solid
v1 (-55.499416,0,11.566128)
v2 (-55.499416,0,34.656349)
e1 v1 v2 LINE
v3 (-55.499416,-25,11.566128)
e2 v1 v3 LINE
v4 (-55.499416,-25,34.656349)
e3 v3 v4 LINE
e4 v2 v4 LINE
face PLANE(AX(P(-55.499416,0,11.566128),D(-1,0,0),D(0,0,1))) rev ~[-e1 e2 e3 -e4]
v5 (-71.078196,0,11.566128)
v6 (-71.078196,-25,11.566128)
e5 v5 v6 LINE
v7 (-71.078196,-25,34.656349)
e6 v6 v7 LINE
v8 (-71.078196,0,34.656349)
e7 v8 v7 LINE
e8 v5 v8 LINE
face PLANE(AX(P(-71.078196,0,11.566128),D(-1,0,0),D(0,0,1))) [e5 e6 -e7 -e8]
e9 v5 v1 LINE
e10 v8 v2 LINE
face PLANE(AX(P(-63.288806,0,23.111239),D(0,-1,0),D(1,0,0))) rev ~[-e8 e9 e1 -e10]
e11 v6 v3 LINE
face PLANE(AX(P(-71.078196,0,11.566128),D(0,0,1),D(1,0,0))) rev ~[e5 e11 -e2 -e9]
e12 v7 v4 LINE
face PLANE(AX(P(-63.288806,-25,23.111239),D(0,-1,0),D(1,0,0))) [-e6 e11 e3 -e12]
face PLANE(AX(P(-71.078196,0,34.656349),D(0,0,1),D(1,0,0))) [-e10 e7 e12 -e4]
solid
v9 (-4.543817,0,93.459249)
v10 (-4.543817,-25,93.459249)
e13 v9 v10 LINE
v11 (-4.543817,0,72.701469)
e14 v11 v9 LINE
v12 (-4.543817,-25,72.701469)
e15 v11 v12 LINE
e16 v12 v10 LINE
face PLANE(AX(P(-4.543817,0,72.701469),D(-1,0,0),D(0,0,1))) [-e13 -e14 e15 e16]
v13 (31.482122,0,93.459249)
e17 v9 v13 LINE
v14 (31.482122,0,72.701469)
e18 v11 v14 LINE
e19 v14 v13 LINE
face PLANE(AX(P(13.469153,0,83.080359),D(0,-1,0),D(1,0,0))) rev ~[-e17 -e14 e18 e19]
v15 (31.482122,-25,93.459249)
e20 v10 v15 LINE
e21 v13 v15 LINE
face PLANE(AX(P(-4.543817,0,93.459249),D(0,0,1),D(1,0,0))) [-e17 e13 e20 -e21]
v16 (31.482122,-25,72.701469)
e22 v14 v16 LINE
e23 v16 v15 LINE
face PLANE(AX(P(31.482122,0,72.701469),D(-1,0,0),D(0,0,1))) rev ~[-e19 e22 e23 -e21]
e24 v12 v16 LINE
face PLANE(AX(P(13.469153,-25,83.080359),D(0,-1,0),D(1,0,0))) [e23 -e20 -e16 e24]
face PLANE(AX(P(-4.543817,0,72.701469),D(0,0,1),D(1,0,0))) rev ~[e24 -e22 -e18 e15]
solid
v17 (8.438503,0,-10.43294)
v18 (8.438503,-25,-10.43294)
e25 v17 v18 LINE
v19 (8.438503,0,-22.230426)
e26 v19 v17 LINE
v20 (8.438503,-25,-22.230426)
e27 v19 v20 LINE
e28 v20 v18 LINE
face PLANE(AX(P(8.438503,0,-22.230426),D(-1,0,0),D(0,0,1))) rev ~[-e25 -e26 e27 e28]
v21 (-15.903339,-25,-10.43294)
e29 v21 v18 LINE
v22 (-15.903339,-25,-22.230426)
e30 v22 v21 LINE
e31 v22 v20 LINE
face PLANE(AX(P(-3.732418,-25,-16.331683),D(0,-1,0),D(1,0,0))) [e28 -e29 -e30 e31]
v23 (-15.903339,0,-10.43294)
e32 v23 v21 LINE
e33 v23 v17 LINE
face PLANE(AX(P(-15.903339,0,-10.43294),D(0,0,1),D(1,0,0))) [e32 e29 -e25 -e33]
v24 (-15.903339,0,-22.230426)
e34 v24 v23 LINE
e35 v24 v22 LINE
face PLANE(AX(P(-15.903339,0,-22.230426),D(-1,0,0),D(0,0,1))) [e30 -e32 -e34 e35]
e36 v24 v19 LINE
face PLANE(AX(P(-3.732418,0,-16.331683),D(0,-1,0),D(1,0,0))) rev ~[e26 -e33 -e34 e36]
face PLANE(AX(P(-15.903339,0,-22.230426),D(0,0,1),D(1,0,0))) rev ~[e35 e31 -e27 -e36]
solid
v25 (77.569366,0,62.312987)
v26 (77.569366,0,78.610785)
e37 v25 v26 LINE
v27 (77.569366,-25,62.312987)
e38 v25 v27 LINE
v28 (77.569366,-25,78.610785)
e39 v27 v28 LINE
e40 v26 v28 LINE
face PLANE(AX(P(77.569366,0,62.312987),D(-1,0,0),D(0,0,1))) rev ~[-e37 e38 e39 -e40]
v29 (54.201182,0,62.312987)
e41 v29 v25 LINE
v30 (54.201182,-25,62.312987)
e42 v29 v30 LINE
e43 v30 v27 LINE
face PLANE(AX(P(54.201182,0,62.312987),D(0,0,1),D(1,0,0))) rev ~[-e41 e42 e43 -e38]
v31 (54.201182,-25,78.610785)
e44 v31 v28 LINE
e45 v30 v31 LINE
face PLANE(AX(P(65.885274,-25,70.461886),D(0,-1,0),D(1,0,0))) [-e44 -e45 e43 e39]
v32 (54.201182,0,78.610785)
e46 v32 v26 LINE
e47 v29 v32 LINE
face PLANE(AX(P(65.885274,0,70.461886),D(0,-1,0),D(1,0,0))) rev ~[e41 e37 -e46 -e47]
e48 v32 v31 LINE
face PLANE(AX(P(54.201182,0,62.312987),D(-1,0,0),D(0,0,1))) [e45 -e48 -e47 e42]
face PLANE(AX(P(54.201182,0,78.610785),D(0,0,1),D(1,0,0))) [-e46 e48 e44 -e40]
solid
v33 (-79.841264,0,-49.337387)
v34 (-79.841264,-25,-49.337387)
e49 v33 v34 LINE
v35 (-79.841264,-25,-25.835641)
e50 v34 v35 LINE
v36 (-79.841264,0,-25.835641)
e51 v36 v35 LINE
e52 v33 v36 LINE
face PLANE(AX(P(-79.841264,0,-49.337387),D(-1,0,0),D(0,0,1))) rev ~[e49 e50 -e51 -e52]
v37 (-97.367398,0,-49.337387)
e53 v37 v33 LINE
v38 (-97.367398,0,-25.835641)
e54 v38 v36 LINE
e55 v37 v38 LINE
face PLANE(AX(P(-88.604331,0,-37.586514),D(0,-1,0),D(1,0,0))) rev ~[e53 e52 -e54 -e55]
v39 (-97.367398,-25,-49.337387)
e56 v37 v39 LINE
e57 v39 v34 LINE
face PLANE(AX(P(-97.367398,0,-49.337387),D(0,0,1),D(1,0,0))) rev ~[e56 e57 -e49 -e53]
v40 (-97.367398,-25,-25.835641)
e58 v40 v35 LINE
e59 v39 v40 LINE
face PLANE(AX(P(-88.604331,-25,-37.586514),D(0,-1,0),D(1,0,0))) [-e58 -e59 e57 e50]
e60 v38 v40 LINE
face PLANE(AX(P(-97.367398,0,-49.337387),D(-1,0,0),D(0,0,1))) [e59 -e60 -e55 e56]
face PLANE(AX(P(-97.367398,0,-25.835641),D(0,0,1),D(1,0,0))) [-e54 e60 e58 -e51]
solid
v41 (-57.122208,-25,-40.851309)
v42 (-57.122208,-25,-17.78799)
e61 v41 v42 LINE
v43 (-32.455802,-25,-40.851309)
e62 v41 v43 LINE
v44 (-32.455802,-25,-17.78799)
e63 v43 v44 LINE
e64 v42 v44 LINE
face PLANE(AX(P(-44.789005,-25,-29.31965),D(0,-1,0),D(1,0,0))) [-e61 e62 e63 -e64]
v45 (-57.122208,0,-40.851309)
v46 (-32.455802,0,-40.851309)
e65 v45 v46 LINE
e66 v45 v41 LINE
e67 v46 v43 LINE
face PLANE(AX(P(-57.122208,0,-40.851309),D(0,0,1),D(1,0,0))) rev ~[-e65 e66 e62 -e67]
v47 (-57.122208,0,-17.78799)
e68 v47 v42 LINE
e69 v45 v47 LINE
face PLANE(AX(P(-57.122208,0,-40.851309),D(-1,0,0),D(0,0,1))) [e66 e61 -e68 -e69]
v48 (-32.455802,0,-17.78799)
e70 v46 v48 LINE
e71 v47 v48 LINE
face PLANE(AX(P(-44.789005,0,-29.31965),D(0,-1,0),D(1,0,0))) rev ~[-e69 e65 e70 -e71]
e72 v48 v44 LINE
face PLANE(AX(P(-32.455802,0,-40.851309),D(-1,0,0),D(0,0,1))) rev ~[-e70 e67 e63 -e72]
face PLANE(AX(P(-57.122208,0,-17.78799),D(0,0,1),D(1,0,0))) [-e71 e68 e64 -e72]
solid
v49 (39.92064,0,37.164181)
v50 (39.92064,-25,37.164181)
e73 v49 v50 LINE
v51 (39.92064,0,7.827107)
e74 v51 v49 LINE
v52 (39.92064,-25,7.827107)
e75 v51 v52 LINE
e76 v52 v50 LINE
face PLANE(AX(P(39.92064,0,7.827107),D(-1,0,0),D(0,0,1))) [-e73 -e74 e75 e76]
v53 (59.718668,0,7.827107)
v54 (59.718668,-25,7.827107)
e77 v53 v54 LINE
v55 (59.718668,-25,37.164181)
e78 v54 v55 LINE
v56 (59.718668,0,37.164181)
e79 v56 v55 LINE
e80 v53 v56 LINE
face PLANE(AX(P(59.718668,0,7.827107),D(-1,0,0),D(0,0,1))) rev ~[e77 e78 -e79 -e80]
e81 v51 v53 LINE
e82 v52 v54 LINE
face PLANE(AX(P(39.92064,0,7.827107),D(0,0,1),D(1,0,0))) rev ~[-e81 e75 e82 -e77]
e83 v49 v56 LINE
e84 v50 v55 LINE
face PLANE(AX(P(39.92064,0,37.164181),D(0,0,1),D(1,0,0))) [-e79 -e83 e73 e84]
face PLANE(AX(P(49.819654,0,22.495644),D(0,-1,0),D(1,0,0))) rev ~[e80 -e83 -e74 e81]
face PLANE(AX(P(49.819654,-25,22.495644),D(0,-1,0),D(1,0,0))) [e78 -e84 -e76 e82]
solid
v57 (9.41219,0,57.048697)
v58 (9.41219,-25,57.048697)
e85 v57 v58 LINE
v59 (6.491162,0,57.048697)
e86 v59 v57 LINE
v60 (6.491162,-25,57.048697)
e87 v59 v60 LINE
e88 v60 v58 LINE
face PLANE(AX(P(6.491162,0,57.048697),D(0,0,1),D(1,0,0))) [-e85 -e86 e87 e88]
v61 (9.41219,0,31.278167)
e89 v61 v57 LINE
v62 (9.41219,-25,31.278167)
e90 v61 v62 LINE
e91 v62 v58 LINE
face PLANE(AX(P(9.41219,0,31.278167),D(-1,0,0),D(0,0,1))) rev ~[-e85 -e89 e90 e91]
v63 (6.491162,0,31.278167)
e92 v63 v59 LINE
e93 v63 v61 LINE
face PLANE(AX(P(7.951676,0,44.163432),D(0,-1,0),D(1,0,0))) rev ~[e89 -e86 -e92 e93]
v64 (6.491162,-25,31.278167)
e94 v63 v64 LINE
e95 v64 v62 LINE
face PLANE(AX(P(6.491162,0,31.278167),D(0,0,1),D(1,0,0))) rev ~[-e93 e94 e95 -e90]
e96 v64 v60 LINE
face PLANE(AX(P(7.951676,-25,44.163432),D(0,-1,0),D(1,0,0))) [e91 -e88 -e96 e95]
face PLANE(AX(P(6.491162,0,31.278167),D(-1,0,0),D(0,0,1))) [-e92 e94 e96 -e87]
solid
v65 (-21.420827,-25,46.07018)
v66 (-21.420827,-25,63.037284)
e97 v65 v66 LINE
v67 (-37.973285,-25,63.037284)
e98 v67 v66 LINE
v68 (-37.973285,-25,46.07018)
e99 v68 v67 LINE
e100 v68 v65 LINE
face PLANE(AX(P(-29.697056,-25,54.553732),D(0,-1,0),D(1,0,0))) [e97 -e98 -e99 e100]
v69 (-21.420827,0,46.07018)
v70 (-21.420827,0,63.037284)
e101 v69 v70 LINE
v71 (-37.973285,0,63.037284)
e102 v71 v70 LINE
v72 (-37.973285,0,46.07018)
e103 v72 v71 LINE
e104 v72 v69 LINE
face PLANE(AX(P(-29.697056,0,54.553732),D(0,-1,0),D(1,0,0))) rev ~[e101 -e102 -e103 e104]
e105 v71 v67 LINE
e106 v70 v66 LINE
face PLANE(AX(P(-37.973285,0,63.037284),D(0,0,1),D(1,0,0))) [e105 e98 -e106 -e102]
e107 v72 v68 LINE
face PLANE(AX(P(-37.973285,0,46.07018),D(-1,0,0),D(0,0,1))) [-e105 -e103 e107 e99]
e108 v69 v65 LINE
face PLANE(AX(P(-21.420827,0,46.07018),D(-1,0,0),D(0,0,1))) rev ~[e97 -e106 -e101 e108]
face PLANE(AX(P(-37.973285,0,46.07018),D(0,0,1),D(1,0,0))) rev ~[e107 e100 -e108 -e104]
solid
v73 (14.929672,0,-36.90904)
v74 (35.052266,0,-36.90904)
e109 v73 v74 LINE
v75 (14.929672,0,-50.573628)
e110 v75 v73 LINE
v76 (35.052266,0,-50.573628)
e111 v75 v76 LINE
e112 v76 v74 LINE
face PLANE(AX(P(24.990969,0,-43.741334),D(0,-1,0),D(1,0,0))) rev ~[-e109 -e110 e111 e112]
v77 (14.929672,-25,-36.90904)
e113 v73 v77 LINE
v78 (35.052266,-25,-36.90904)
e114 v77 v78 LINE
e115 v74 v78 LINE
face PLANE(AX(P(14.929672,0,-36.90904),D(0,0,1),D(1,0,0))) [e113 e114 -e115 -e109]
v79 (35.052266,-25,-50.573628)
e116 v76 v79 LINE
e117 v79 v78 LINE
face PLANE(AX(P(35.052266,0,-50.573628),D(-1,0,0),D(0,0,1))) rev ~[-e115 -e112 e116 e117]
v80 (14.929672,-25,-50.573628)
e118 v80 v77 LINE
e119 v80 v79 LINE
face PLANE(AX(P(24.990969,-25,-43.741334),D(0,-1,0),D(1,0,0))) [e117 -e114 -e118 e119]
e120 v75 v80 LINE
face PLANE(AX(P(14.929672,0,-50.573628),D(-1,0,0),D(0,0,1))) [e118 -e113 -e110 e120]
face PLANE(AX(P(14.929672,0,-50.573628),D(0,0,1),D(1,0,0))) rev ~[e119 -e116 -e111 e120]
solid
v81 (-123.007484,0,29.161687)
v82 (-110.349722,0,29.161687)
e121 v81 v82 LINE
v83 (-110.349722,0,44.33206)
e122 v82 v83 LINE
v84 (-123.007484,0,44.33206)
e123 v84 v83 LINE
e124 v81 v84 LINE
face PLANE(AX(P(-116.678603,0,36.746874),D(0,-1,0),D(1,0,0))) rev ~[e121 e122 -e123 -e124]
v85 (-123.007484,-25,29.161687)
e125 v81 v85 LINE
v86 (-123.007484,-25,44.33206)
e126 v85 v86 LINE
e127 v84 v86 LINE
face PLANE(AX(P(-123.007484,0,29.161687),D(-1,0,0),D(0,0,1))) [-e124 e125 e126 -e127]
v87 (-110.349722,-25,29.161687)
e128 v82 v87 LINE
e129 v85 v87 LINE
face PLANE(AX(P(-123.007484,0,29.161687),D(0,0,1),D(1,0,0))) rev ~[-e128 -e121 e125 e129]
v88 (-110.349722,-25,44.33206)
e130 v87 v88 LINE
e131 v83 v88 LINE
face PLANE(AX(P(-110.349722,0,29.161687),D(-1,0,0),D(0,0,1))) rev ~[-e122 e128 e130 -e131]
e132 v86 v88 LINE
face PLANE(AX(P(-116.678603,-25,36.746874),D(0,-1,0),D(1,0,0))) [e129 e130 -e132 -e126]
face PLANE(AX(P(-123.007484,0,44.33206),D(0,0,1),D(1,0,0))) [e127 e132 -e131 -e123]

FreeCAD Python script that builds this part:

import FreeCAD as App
import Part
import Sketcher


def add_polygon(sketch, points):
    """Adds a closed chain of lines whose ends are joined by coincident constraints."""
    first, n = sketch.GeometryCount, len(points)
    for a, b in zip(points, points[1:] + points[:1]):
        sketch.addGeometry(Part.LineSegment(App.Vector(*a, 0), App.Vector(*b, 0)), False)
    for i in range(n):
        sketch.addConstraint(Sketcher.Constraint("Coincident", first + i, 2, first + (i + 1) % n, 1))

doc = App.newDocument("Part")
params = doc.addObject("Spreadsheet::Sheet", "Params")
for row, (alias, value) in enumerate([
    ("pad1_length", "25 mm"),
], start=1):
    params.set(f"A{row}", alias)
    params.set(f"B{row}", "=" + value)
    params.setAlias(f"B{row}", alias)

body = doc.addObject("PartDesign::Body", "Body")
body.AllowCompound = True

# Sketch on XZ plane
sketch1 = doc.addObject("Sketcher::SketchObject", "Sketch")
body.addObject(sketch1)
sketch1.AttachmentSupport = (doc.XZ_Plane, [""])
sketch1.MapMode = "FlatFace"
add_polygon(sketch1, [(-123, 44.3), (-123, 29.2), (-110.3, 29.2), (-110.3, 44.3)])  # lines 0-3
add_polygon(sketch1, [(-97.4, -25.8), (-97.4, -49.3), (-79.8, -49.3), (-79.8, -25.8)])  # lines 4-7
add_polygon(sketch1, [(-71.1, 34.7), (-71.1, 11.6), (-55.5, 11.6), (-55.5, 34.7)])  # lines 8-11
add_polygon(sketch1, [(-38, 63), (-38, 46.1), (-21.4, 46.1), (-21.4, 63)])  # lines 12-15
add_polygon(sketch1, [(6.5, 57), (6.5, 31.3), (9.4, 31.3), (9.4, 57)])  # lines 16-19
add_polygon(sketch1, [(39.9, 37.2), (39.9, 7.8), (59.7, 7.8), (59.7, 37.2)])  # lines 20-23
add_polygon(sketch1, [(14.9, -36.9), (14.9, -50.6), (35.1, -50.6), (35.1, -36.9)])  # lines 24-27
add_polygon(sketch1, [(-57.1, -17.8), (-57.1, -40.9), (-32.5, -40.9), (-32.5, -17.8)])  # lines 28-31
add_polygon(sketch1, [(-15.9, -10.4), (-15.9, -22.2), (8.4, -22.2), (8.4, -10.4)])  # lines 32-35
add_polygon(sketch1, [(54.2, 78.6), (54.2, 62.3), (77.6, 62.3), (77.6, 78.6)])  # lines 36-39
add_polygon(sketch1, [(-4.5, 93.5), (-4.5, 72.7), (31.5, 72.7), (31.5, 93.5)])  # lines 40-43
sketch1.addConstraint([
    Sketcher.Constraint("Vertical", 0),
    Sketcher.Constraint("Horizontal", 1),
    Sketcher.Constraint("Vertical", 2),
    Sketcher.Constraint("Horizontal", 3),
    Sketcher.Constraint("Vertical", 4),
    Sketcher.Constraint("Horizontal", 5),
    Sketcher.Constraint("Vertical", 6),
    Sketcher.Constraint("Horizontal", 7),
    Sketcher.Constraint("Vertical", 8),
    Sketcher.Constraint("Horizontal", 9),
    Sketcher.Constraint("Vertical", 10),
    Sketcher.Constraint("Horizontal", 11),
    Sketcher.Constraint("Vertical", 12),
    Sketcher.Constraint("Horizontal", 13),
    Sketcher.Constraint("Vertical", 14),
    Sketcher.Constraint("Horizontal", 15),
    Sketcher.Constraint("Vertical", 16),
    Sketcher.Constraint("Horizontal", 17),
    Sketcher.Constraint("Vertical", 18),
    Sketcher.Constraint("Horizontal", 19),
    Sketcher.Constraint("Vertical", 20),
    Sketcher.Constraint("Horizontal", 21),
    Sketcher.Constraint("Vertical", 22),
    Sketcher.Constraint("Horizontal", 23),
    Sketcher.Constraint("Vertical", 24),
    Sketcher.Constraint("Horizontal", 25),
    Sketcher.Constraint("Vertical", 26),
    Sketcher.Constraint("Horizontal", 27),
    Sketcher.Constraint("Vertical", 28),
    Sketcher.Constraint("Horizontal", 29),
    Sketcher.Constraint("Vertical", 30),
    Sketcher.Constraint("Horizontal", 31),
    Sketcher.Constraint("Vertical", 32),
    Sketcher.Constraint("Horizontal", 33),
    Sketcher.Constraint("Vertical", 34),
    Sketcher.Constraint("Horizontal", 35),
    Sketcher.Constraint("Vertical", 36),
    Sketcher.Constraint("Horizontal", 37),
    Sketcher.Constraint("Vertical", 38),
    Sketcher.Constraint("Horizontal", 39),
    Sketcher.Constraint("Vertical", 40),
    Sketcher.Constraint("Horizontal", 41),
    Sketcher.Constraint("Vertical", 42),
    Sketcher.Constraint("Horizontal", 43),
    Sketcher.Constraint("DistanceY", 36, 2, 36, 1, 16.297798),
    Sketcher.Constraint("DistanceX", 9, 1, 9, 2, 15.57878),
    Sketcher.Constraint("DistanceX", 21, 1, 21, 2, 19.798029),
    Sketcher.Constraint("DistanceX", 33, 1, 33, 2, 24.341842),
    Sketcher.Constraint("DistanceX", 41, 1, 41, 2, 36.025939),
    Sketcher.Constraint("DistanceY", 8, 2, 8, 1, 23.090221),
    Sketcher.Constraint("DistanceY", 16, 2, 16, 1, 25.77053),
    Sketcher.Constraint("DistanceY", 24, 2, 24, 1, 13.664588),
    Sketcher.Constraint("DistanceY", 28, 2, 28, 1, 23.063319),
    Sketcher.Constraint("DistanceY", 40, 2, 40, 1, 20.75778),
    Sketcher.Constraint("DistanceX", 29, 2, -1, 1, 32.455802),
    Sketcher.Constraint("DistanceY", 6, 2, 2, 2, 70.167701),
    Sketcher.Constraint("DistanceX", 7, 2, 8, 2, 26.289202),
    Sketcher.Constraint("DistanceY", 24, 2, 32, 2, 28.343202),
    Sketcher.Constraint("DistanceY", 27, 2, 34, 2, 26.4761),
    Sketcher.Constraint("DistanceX", 1, 1, 1, 2, 12.657762),
    Sketcher.Constraint("DistanceX", 5, 1, 5, 2, 17.526134),
    Sketcher.Constraint("DistanceX", 13, 1, 13, 2, 16.552458),
    Sketcher.Constraint("DistanceX", 17, 1, 17, 2, 2.921027),
    Sketcher.Constraint("DistanceX", 25, 1, 25, 2, 20.122594),
    Sketcher.Constraint("DistanceX", 29, 1, 29, 2, 24.666406),
    Sketcher.Constraint("DistanceX", 37, 1, 37, 2, 23.368184),
    Sketcher.Constraint("DistanceY", 0, 2, 0, 1, 15.170373),
    Sketcher.Constraint("DistanceY", 4, 2, 4, 1, 23.501746),
    Sketcher.Constraint("DistanceY", 12, 2, 12, 1, 16.967103),
    Sketcher.Constraint("DistanceY", 20, 2, 20, 1, 29.337074),
    Sketcher.Constraint("DistanceX", 1, 2, -1, 1, 110.349722),
    Sketcher.Constraint("DistanceY", -1, 1, 2, 2, 44.33206),
    Sketcher.Constraint("DistanceY", -1, 1, 8, 2, 11.566128),
    Sketcher.Constraint("DistanceY", -1, 1, 12, 2, 46.07018),
    Sketcher.Constraint("DistanceX", -1, 1, 17, 2, 9.41219),
    Sketcher.Constraint("DistanceX", -1, 1, 20, 2, 39.92064),
    Sketcher.Constraint("DistanceY", -1, 1, 22, 2, 37.164181),
    Sketcher.Constraint("DistanceY", 26, 2, -1, 1, 36.90904),
    Sketcher.Constraint("DistanceY", 28, 2, -1, 1, 40.851309),
    Sketcher.Constraint("DistanceX", 32, 2, -1, 1, 15.903339),
    Sketcher.Constraint("DistanceY", -1, 1, 40, 2, 72.701469),
    Sketcher.Constraint("DistanceX", 1, 2, 5, 2, 30.508458),
    Sketcher.Constraint("DistanceX", 10, 2, 12, 2, 17.526131),
    Sketcher.Constraint("DistanceY", 20, 2, 17, 2, 23.45106),
    Sketcher.Constraint("DistanceX", 16, 2, 24, 2, 8.43851),
    Sketcher.Constraint("DistanceY", 18, 2, 36, 2, 5.26429),
    Sketcher.Constraint("DistanceX", 19, 2, 36, 2, 47.71002),
    Sketcher.Constraint("DistanceX", 40, 2, 19, 2, 11.034979),
])
pad1 = doc.addObject("PartDesign::Pad", "Pad")
body.addObject(pad1)
pad1.Profile = sketch1
pad1.setExpression("Length", "Params.pad1_length")

doc.recompute()
